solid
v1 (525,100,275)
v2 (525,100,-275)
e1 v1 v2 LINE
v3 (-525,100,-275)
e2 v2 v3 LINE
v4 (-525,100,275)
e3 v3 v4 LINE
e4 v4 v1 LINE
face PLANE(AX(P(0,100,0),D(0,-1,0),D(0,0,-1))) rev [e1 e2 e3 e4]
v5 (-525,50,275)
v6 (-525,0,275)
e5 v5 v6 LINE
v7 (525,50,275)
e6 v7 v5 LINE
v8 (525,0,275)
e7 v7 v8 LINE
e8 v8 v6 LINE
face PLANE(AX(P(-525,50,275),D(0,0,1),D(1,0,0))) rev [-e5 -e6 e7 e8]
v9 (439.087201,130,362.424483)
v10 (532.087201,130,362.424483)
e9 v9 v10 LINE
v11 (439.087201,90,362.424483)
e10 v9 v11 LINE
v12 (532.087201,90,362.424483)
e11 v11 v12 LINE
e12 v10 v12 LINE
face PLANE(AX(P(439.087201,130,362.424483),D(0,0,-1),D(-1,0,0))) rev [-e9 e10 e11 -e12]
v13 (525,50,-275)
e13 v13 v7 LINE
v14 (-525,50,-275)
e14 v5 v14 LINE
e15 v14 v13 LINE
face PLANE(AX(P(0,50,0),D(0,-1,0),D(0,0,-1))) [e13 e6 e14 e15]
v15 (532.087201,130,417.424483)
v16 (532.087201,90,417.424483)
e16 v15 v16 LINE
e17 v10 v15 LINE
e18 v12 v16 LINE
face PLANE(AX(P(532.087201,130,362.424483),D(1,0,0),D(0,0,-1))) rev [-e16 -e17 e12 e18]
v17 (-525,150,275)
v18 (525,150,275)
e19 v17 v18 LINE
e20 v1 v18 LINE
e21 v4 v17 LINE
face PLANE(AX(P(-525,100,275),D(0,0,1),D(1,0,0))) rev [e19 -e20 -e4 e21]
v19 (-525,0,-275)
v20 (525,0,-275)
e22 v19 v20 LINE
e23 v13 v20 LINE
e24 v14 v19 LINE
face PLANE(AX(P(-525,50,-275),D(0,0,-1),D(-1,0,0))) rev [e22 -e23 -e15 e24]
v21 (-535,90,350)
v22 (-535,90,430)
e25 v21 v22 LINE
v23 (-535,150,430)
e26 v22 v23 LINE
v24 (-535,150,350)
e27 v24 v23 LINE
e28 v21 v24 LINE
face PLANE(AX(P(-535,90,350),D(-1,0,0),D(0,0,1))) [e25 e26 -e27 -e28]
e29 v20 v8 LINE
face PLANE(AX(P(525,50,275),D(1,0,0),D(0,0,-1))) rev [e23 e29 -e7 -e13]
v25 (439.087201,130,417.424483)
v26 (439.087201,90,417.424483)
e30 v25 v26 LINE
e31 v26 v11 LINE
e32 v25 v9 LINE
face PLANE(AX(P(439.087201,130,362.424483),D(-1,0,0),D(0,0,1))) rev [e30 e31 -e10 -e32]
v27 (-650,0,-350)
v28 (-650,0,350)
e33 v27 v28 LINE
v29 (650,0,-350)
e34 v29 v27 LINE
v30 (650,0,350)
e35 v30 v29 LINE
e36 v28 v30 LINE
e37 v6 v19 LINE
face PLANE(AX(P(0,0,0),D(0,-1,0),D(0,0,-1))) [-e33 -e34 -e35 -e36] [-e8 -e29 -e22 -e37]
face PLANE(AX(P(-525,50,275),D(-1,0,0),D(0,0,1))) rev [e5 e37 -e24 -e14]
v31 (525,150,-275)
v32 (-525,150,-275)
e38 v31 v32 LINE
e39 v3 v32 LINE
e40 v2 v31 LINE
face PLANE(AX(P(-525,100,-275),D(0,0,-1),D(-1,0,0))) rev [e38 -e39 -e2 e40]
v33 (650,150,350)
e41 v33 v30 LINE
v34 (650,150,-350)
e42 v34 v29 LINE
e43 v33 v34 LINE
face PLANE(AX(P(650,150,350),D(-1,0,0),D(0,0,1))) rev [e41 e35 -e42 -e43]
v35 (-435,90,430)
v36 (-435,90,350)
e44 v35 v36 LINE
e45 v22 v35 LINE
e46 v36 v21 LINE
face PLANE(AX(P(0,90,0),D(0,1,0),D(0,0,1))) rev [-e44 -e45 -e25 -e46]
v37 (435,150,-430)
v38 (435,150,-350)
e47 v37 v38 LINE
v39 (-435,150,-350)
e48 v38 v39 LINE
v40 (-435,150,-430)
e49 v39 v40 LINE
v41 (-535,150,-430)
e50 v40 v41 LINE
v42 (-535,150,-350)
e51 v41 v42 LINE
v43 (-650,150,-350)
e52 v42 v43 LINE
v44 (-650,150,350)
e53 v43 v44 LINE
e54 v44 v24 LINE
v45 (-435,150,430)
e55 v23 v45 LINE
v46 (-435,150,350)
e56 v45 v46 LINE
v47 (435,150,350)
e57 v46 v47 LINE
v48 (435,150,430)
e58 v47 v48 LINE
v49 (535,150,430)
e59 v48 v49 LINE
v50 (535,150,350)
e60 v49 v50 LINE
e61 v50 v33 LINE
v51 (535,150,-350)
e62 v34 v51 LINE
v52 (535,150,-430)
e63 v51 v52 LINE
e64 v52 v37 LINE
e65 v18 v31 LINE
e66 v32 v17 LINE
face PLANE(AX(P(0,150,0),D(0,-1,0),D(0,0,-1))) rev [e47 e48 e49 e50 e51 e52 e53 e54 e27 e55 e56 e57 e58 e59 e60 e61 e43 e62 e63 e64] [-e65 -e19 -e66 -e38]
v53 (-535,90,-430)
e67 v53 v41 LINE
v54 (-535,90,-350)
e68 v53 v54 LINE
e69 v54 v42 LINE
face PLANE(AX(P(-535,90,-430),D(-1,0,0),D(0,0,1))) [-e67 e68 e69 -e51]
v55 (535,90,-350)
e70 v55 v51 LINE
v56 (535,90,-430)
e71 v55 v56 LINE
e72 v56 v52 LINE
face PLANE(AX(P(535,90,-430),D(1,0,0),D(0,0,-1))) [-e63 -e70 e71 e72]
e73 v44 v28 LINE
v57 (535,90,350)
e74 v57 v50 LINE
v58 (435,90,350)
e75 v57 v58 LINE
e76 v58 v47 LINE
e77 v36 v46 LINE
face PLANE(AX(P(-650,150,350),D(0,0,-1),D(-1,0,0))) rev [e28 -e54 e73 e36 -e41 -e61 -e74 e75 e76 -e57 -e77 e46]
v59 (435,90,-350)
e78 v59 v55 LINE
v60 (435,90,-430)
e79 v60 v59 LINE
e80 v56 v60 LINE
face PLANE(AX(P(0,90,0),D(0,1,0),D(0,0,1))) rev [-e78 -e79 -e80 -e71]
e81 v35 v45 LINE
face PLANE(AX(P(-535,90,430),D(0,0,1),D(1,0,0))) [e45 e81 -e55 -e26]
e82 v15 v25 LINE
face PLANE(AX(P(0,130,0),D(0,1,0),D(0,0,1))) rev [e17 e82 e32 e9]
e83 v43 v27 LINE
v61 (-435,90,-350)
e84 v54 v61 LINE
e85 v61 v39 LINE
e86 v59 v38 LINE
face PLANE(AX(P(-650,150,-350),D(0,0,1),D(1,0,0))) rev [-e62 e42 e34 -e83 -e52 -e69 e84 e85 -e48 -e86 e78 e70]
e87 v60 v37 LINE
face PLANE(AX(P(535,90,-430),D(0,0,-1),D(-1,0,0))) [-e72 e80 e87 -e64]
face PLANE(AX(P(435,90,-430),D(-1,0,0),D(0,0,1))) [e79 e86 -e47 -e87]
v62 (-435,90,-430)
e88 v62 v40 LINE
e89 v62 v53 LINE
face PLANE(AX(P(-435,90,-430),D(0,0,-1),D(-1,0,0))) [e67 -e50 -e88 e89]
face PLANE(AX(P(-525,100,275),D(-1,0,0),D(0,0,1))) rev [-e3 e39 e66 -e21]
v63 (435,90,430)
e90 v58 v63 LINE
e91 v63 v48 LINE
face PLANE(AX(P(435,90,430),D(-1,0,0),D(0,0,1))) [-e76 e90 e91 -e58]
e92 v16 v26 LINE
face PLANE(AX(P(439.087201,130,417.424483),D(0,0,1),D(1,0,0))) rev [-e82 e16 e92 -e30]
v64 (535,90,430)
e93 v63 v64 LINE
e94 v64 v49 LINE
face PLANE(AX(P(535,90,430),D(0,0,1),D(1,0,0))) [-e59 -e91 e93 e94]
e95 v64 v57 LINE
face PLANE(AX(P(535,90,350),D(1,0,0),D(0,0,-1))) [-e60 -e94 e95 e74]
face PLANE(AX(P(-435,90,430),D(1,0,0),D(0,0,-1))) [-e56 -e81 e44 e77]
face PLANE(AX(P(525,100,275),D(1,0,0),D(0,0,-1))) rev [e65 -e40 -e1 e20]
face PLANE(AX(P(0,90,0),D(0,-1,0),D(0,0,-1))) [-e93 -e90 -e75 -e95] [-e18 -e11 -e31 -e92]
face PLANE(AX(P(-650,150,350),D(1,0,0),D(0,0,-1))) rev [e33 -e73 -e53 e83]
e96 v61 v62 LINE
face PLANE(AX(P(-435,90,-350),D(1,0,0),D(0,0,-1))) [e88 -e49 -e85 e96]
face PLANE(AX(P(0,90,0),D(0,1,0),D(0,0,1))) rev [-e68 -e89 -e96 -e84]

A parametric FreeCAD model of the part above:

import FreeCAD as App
import Part
import Sketcher
from FreeCAD import Vector
Q = App.Units.Quantity


def add_polygon(sketch, points):
    """Adds a closed chain of lines whose ends are joined by coincident constraints."""
    first, n = sketch.GeometryCount, len(points)
    for a, b in zip(points, points[1:] + points[:1]):
        sketch.addGeometry(Part.LineSegment(App.Vector(*a, 0), App.Vector(*b, 0)), False)
    for i in range(n):
        sketch.addConstraint(Sketcher.Constraint("Coincident", first + i, 2, first + (i + 1) % n, 1))

doc = App.newDocument("Part")
body = doc.addObject("PartDesign::Body", "Body")

# Sketch on XZ plane
sketch1 = doc.addObject("Sketcher::SketchObject", "Sketch")
body.addObject(sketch1)
sketch1.AttachmentSupport = (doc.XZ_Plane, [""])
sketch1.MapMode = "FlatFace"
add_polygon(sketch1, [(-650, -350), (-650, 350), (650, 350), (650, -350)])  # lines 0-3
sketch1.addConstraint(Sketcher.Constraint("Vertical", 0))
sketch1.addConstraint(Sketcher.Constraint("Horizontal", 1))
sketch1.addConstraint(Sketcher.Constraint("Vertical", 2))
sketch1.addConstraint(Sketcher.Constraint("Horizontal", 3))
sketch1.addConstraint(Sketcher.Constraint("Symmetric", 0, 2, 2, 2, -1, 1))
sketch1.addConstraint(Sketcher.Constraint("DistanceX", 1, 1, 1, 2, Q("1300 mm")))
sketch1.addConstraint(Sketcher.Constraint("DistanceY", 0, 1, 0, 2, Q("700 mm")))
pad1 = doc.addObject("PartDesign::Pad", "Pad")
body.addObject(pad1)
pad1.Profile = sketch1
pad1.Length = 150
pad1.Reversed = True

# Sketch on XZ plane
sketch2 = doc.addObject("Sketcher::SketchObject", "Sketch001")
body.addObject(sketch2)
sketch2.AttachmentSupport = (doc.XZ_Plane, [""])
sketch2.MapMode = "FlatFace"
sketch2.AttachmentOffset = App.Placement(Vector(0, 0, -150), App.Rotation())
add_polygon(sketch2, [(-525, -275), (-525, 275), (525, 275), (525, -275)])  # lines 0-3
sketch2.addConstraint(Sketcher.Constraint("Vertical", 0))
sketch2.addConstraint(Sketcher.Constraint("Horizontal", 1))
sketch2.addConstraint(Sketcher.Constraint("Vertical", 2))
sketch2.addConstraint(Sketcher.Constraint("Horizontal", 3))
sketch2.addConstraint(Sketcher.Constraint("Symmetric", 0, 2, 2, 2, -1, 1))
sketch2.addConstraint(Sketcher.Constraint("DistanceX", 1, 1, 1, 2, Q("1050 mm")))
sketch2.addConstraint(Sketcher.Constraint("DistanceY", 0, 1, 0, 2, Q("550 mm")))
pocket1 = doc.addObject("PartDesign::Pocket", "Pocket")
body.addObject(pocket1)
pocket1.Profile = sketch2
pocket1.Length = 50
pocket1.Reversed = True

# Sketch on XZ plane
sketch3 = doc.addObject("Sketcher::SketchObject", "Sketch002")
body.addObject(sketch3)
sketch3.AttachmentSupport = (doc.XZ_Plane, [""])
sketch3.MapMode = "FlatFace"
add_polygon(sketch3, [(-525, 275), (-525, -275), (525, -275), (525, 275)])  # lines 0-3
sketch3.addConstraint(Sketcher.Constraint("Vertical", 0))
sketch3.addConstraint(Sketcher.Constraint("Horizontal", 1))
sketch3.addConstraint(Sketcher.Constraint("Vertical", 2))
sketch3.addConstraint(Sketcher.Constraint("Horizontal", 3))
sketch3.addConstraint(Sketcher.Constraint("Symmetric", 0, 2, 2, 2, -1, 1))
sketch3.addConstraint(Sketcher.Constraint("DistanceX", 1, 1, 1, 2, Q("1050 mm")))
sketch3.addConstraint(Sketcher.Constraint("DistanceY", 0, 2, 0, 1, Q("550 mm")))
pocket2 = doc.addObject("PartDesign::Pocket", "Pocket001")
body.addObject(pocket2)
pocket2.Profile = sketch3
pocket2.Length = 50

# Sketch on XZ plane
sketch4 = doc.addObject("Sketcher::SketchObject", "Sketch003")
body.addObject(sketch4)
sketch4.AttachmentSupport = (doc.XZ_Plane, [""])
sketch4.MapMode = "FlatFace"
sketch4.AttachmentOffset = App.Placement(Vector(0, 0, -150), App.Rotation())
add_polygon(sketch4, [(435, 350), (435, 430), (535, 430), (535, 350)])  # lines 0-3
add_polygon(sketch4, [(-535, 350), (-535, 430), (-435, 430), (-435, 350)])  # lines 4-7
sketch4.addConstraint(Sketcher.Constraint("Vertical", 0))
sketch4.addConstraint(Sketcher.Constraint("Horizontal", 1))
sketch4.addConstraint(Sketcher.Constraint("Vertical", 2))
sketch4.addConstraint(Sketcher.Constraint("Horizontal", 3))
sketch4.addConstraint(Sketcher.Constraint("Vertical", 4))
sketch4.addConstraint(Sketcher.Constraint("Horizontal", 5))
sketch4.addConstraint(Sketcher.Constraint("Vertical", 6))
sketch4.addConstraint(Sketcher.Constraint("Horizontal", 7))
sketch4.addConstraint(Sketcher.Constraint("Symmetric", 1, 2, 4, 2, -2))
sketch4.addConstraint(Sketcher.Constraint("Symmetric", 3, 2, 6, 2, -2))
sketch4.addConstraint(Sketcher.Constraint("DistanceX", 1, 1, 1, 2, Q("100 mm")))
sketch4.addConstraint(Sketcher.Constraint("DistanceY", 0, 1, 0, 2, Q("80 mm")))
sketch4.addConstraint(Sketcher.Constraint("DistanceX", -1, 1, 0, 2, Q("435 mm")))
sketch4.addConstraint(Sketcher.Constraint("DistanceY", -1, 1, 0, 2, Q("430 mm")))
pad2 = doc.addObject("PartDesign::Pad", "Pad001")
body.addObject(pad2)
pad2.Profile = sketch4
pad2.Length = 60

# Sketch on XZ plane
sketch5 = doc.addObject("Sketcher::SketchObject", "Sketch004")
body.addObject(sketch5)
sketch5.AttachmentSupport = (doc.XZ_Plane, [""])
sketch5.MapMode = "FlatFace"
sketch5.AttachmentOffset = App.Placement(Vector(0, 0, -90), App.Rotation())
add_polygon(sketch5, [(439, 417), (439, 362), (532, 362), (532, 417)])  # lines 0-3
sketch5.addConstraint(Sketcher.Constraint("Vertical", 0))
sketch5.addConstraint(Sketcher.Constraint("Horizontal", 1))
sketch5.addConstraint(Sketcher.Constraint("Vertical", 2))
sketch5.addConstraint(Sketcher.Constraint("Horizontal", 3))
sketch5.addConstraint(Sketcher.Constraint("DistanceX", 1, 1, 1, 2, Q("93 mm")))
sketch5.addConstraint(Sketcher.Constraint("DistanceY", 0, 2, 0, 1, Q("55 mm")))
sketch5.addConstraint(Sketcher.Constraint("DistanceX", -1, 1, 0, 2, Q("439.087201 mm")))
sketch5.addConstraint(Sketcher.Constraint("DistanceY", -1, 1, 0, 2, Q("362.424483 mm")))
pocket3 = doc.addObject("PartDesign::Pocket", "Pocket002")
body.addObject(pocket3)
pocket3.Profile = sketch5
pocket3.Length = 40

# Sketch on XZ plane
sketch6 = doc.addObject("Sketcher::SketchObject", "Sketch005")
body.addObject(sketch6)
sketch6.AttachmentSupport = (doc.XZ_Plane, [""])
sketch6.MapMode = "FlatFace"
sketch6.AttachmentOffset = App.Placement(Vector(0, 0, -150), App.Rotation())
add_polygon(sketch6, [(435, -430), (435, -350), (535, -350), (535, -430)])  # lines 0-3
add_polygon(sketch6, [(-535, -430), (-535, -350), (-435, -350), (-435, -430)])  # lines 4-7
sketch6.addConstraint(Sketcher.Constraint("Vertical", 0))
sketch6.addConstraint(Sketcher.Constraint("Horizontal", 1))
sketch6.addConstraint(Sketcher.Constraint("Vertical", 2))
sketch6.addConstraint(Sketcher.Constraint("Horizontal", 3))
sketch6.addConstraint(Sketcher.Constraint("Vertical", 4))
sketch6.addConstraint(Sketcher.Constraint("Horizontal", 5))
sketch6.addConstraint(Sketcher.Constraint("Vertical", 6))
sketch6.addConstraint(Sketcher.Constraint("Horizontal", 7))
sketch6.addConstraint(Sketcher.Constraint("Symmetric", 1, 2, 4, 2, -2))
sketch6.addConstraint(Sketcher.Constraint("Symmetric", 3, 2, 6, 2, -2))
sketch6.addConstraint(Sketcher.Constraint("DistanceX", 1, 1, 1, 2, Q("100 mm")))
sketch6.addConstraint(Sketcher.Constraint("DistanceY", 0, 1, 0, 2, Q("80 mm")))
sketch6.addConstraint(Sketcher.Constraint("DistanceX", -1, 1, 0, 2, Q("435 mm")))
sketch6.addConstraint(Sketcher.Constraint("DistanceY", 0, 2, -1, 1, Q("350 mm")))
pad3 = doc.addObject("PartDesign::Pad", "Pad002")
body.addObject(pad3)
pad3.Profile = sketch6
pad3.Length = 60

doc.recompute()
